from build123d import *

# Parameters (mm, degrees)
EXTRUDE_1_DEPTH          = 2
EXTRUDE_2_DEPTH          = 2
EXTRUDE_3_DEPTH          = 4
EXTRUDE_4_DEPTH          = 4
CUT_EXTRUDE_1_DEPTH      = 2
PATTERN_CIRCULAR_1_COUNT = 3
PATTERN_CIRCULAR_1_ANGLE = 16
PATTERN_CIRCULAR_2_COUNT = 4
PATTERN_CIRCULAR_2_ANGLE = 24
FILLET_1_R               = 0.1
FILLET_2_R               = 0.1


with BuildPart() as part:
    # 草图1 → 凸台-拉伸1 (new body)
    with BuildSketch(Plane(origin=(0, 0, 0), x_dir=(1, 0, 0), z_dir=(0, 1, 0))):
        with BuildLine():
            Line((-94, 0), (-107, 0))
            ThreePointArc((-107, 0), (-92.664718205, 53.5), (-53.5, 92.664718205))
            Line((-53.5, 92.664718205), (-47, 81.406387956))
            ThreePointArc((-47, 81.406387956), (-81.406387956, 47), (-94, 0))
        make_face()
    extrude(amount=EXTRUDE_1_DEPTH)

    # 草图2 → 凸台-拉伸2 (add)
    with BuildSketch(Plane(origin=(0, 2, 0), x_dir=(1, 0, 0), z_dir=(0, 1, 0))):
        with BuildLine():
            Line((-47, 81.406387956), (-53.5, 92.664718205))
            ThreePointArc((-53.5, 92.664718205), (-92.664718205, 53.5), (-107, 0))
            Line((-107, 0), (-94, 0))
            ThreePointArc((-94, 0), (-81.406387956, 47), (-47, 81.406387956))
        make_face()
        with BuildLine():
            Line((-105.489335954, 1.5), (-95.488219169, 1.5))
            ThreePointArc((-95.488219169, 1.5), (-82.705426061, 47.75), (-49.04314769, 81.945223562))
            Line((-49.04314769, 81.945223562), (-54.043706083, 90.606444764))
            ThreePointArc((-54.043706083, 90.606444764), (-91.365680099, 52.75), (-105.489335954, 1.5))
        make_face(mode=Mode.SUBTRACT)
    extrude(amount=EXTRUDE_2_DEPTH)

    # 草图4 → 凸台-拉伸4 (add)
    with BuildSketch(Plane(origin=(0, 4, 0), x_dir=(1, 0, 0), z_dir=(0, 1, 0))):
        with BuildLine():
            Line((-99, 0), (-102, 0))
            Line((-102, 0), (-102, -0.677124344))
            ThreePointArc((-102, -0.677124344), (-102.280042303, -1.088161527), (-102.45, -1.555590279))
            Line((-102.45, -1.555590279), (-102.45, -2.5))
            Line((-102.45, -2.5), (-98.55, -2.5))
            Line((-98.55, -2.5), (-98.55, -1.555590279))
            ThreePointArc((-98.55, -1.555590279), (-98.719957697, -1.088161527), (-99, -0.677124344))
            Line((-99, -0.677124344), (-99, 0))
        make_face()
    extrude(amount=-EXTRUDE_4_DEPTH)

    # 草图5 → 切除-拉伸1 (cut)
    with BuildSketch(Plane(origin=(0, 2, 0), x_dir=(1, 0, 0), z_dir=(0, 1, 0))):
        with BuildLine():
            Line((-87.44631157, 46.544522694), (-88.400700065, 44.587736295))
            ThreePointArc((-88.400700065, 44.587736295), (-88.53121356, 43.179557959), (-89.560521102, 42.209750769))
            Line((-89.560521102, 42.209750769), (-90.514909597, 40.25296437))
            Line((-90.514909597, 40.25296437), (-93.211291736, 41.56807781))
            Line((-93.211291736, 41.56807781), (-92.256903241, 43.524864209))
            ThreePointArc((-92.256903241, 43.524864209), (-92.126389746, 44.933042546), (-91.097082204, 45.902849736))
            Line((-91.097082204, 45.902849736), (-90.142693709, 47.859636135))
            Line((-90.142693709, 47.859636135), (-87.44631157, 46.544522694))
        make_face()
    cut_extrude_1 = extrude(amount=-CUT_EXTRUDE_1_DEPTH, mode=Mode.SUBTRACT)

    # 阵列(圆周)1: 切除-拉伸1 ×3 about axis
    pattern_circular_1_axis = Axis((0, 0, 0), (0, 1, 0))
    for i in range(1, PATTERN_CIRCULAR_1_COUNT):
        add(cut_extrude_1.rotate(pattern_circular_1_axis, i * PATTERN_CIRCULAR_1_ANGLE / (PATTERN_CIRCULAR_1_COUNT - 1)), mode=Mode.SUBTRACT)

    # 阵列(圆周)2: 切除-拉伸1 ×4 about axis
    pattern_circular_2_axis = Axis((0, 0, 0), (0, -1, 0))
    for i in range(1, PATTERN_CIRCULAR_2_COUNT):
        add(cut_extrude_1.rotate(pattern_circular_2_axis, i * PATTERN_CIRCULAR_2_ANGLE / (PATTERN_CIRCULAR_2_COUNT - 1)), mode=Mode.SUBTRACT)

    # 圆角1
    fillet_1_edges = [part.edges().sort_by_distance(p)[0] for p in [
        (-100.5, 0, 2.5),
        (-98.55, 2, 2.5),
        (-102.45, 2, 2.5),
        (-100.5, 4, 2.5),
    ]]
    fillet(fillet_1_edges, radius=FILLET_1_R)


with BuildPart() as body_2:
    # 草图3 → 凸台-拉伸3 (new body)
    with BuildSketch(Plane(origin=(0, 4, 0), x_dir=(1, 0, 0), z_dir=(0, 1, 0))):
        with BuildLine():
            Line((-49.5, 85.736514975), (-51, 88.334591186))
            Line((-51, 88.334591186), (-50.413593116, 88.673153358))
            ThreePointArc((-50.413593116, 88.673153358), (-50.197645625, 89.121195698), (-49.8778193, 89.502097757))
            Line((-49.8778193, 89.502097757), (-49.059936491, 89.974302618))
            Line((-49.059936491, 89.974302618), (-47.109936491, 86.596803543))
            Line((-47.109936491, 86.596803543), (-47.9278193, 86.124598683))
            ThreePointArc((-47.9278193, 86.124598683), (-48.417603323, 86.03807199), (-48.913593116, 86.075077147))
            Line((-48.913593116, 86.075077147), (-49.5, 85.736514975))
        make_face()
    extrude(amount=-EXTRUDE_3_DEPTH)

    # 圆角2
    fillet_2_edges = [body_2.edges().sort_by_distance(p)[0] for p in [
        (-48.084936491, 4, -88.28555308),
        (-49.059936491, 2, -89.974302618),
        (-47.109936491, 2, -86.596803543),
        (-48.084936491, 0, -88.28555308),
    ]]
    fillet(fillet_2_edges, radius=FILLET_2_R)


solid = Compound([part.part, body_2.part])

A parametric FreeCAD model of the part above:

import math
import FreeCAD as App
import Part
import Sketcher
from FreeCAD import Vector
Q = App.Units.Quantity


def edges_at(feature, points):
    """Names of the edges that pass closest to the given points."""
    edges = feature.Shape.Edges
    near = lambda p: min(range(len(edges)), key=lambda i: edges[i].distToShape(Part.Vertex(*p))[0])
    return sorted({f"Edge{near(p) + 1}" for p in points})

doc = App.newDocument("Part")
body = doc.addObject("PartDesign::Body", "Body")

sketch1 = doc.addObject("Sketcher::SketchObject", "Sketch")
body.addObject(sketch1)
sketch1.AttachmentSupport = (doc.XZ_Plane, [""])
sketch1.MapMode = "FlatFace"
sketch1.addGeometry([
    Part.LineSegment(Vector(-107, 0, 0), Vector(-94, 0, 0)),
    Part.ArcOfCircle(Part.Circle(Vector(0, 0, 0), Vector(0, 0, 1), 94), math.radians(180), math.radians(240)),
    Part.LineSegment(Vector(-47, -81, 0), Vector(-54, -93, 0)),
    Part.ArcOfCircle(Part.Circle(Vector(0, 0, 0), Vector(0, 0, 1), 107), math.radians(180), math.radians(240)),
], False)
sketch1.addConstraint([
    Sketcher.Constraint("Coincident", 0, 2, 1, 1),
    Sketcher.Constraint("Coincident", 1, 2, 2, 1),
    Sketcher.Constraint("Coincident", 2, 2, 3, 2),
    Sketcher.Constraint("Coincident", 3, 1, 0, 1),
    Sketcher.Constraint("Horizontal", 0),
    Sketcher.Constraint("Coincident", 1, 3, -1, 1),
    Sketcher.Constraint("Coincident", 3, 3, -1, 1),
    Sketcher.Constraint("PointOnObject", 0, 2, -1),
    Sketcher.Constraint("Radius", 1, Q("94 mm")),
    Sketcher.Constraint("Radius", 3, Q("107 mm")),
    Sketcher.Constraint("Angle", 2, Q("-120 deg")),
    Sketcher.Constraint("DistanceX", 1, 2, -1, 1, Q("47 mm")),
])
pad1 = doc.addObject("PartDesign::Pad", "Pad")
body.addObject(pad1)
pad1.Profile = sketch1
pad1.Length = 2
pad1.Reversed = True

sketch2 = doc.addObject("Sketcher::SketchObject", "Sketch001")
body.addObject(sketch2)
sketch2.AttachmentSupport = (doc.XZ_Plane, [""])
sketch2.MapMode = "FlatFace"
sketch2.AttachmentOffset = App.Placement(Vector(0, 0, -2), App.Rotation())
sketch2.addGeometry([
    Part.LineSegment(Vector(-47, -81, 0), Vector(-54, -93, 0)),
    Part.ArcOfCircle(Part.Circle(Vector(0, 0, 0), Vector(0, 0, 1), 107), math.radians(180), math.radians(240)),
    Part.LineSegment(Vector(-107, 0, 0), Vector(-94, 0, 0)),
    Part.ArcOfCircle(Part.Circle(Vector(0, 0, 0), Vector(0, 0, 1), 94), math.radians(180), math.radians(240)),
    Part.LineSegment(Vector(-95, -2, 0), Vector(-105, -2, 0)),
    Part.ArcOfCircle(Part.Circle(Vector(0, 0, 0), Vector(0, 0, 1), 106), math.radians(-179), math.radians(-121)),
    Part.LineSegment(Vector(-54, -91, 0), Vector(-49, -82, 0)),
    Part.ArcOfCircle(Part.Circle(Vector(0, 0, 0), Vector(0, 0, 1), 96), math.radians(-179), math.radians(-121)),
], False)
sketch2.addConstraint([
    Sketcher.Constraint("Coincident", 0, 2, 1, 2),
    Sketcher.Constraint("Coincident", 1, 1, 2, 1),
    Sketcher.Constraint("Coincident", 2, 2, 3, 1),
    Sketcher.Constraint("Coincident", 3, 2, 0, 1),
    Sketcher.Constraint("Coincident", 4, 2, 5, 1),
    Sketcher.Constraint("Coincident", 5, 2, 6, 1),
    Sketcher.Constraint("Coincident", 6, 2, 7, 2),
    Sketcher.Constraint("Coincident", 7, 1, 4, 1),
    Sketcher.Constraint("Horizontal", 2),
    Sketcher.Constraint("Horizontal", 4),
    Sketcher.Constraint("Coincident", 1, 3, -1, 1),
    Sketcher.Constraint("Coincident", 3, 3, -1, 1),
    Sketcher.Constraint("Coincident", 5, 3, -1, 1),
    Sketcher.Constraint("Coincident", 7, 3, -1, 1),
    Sketcher.Constraint("PointOnObject", 1, 1, -1),
    Sketcher.Constraint("Parallel", 0, 6),
    Sketcher.Constraint("Radius", 1, Q("107 mm")),
    Sketcher.Constraint("Radius", 3, Q("94 mm")),
    Sketcher.Constraint("Radius", 5, Q("105.5 mm")),
    Sketcher.Constraint("Radius", 7, Q("95.5 mm")),
    Sketcher.Constraint("Angle", 0, Q("-120 deg")),
    Sketcher.Constraint("DistanceX", 3, 2, -1, 1, Q("47 mm")),
    Sketcher.Constraint("DistanceY", 4, 2, -1, 1, Q("1.5 mm")),
    Sketcher.Constraint("DistanceX", 4, 2, 5, 2, Q("51.44563 mm")),
])
pad2 = doc.addObject("PartDesign::Pad", "Pad001")
body.addObject(pad2)
pad2.Profile = sketch2
pad2.Length = 2
pad2.Reversed = True

sketch3 = doc.addObject("Sketcher::SketchObject", "Sketch002")
body.addObject(sketch3)
sketch3.AttachmentSupport = (doc.XZ_Plane, [""])
sketch3.MapMode = "FlatFace"
sketch3.AttachmentOffset = App.Placement(Vector(0, 0, -4), App.Rotation())
sketch3.addGeometry([
    Part.LineSegment(Vector(-99, 0, 0), Vector(-102, 0, 0)),
    Part.LineSegment(Vector(-102, 0, 0), Vector(-102, 0.7, 0)),
    Part.ArcOfCircle(Part.Circle(Vector(-100.5, 2, 0), Vector(0, 0, 1), 2), math.radians(-167), math.radians(-139)),
    Part.LineSegment(Vector(-102.5, 1.6, 0), Vector(-102.5, 2.5, 0)),
    Part.LineSegment(Vector(-102.5, 2.5, 0), Vector(-98.5, 2.5, 0)),
    Part.LineSegment(Vector(-98.5, 2.5, 0), Vector(-98.5, 1.6, 0)),
    Part.ArcOfCircle(Part.Circle(Vector(-100.5, 2, 0), Vector(0, 0, 1), 2), math.radians(-41), math.radians(-13)),
    Part.LineSegment(Vector(-99, 0.7, 0), Vector(-99, 0, 0)),
], False)
sketch3.addConstraint([
    Sketcher.Constraint("Coincident", 0, 2, 1, 1),
    Sketcher.Constraint("Coincident", 1, 2, 2, 2),
    Sketcher.Constraint("Coincident", 2, 1, 3, 1),
    Sketcher.Constraint("Coincident", 3, 2, 4, 1),
    Sketcher.Constraint("Coincident", 4, 2, 5, 1),
    Sketcher.Constraint("Coincident", 5, 2, 6, 2),
    Sketcher.Constraint("Coincident", 6, 1, 7, 1),
    Sketcher.Constraint("Coincident", 7, 2, 0, 1),
    Sketcher.Constraint("Horizontal", 0),
    Sketcher.Constraint("Vertical", 1),
    Sketcher.Constraint("Vertical", 3),
    Sketcher.Constraint("Horizontal", 4),
    Sketcher.Constraint("Vertical", 5),
    Sketcher.Constraint("Vertical", 7),
    Sketcher.Constraint("Coincident", 6, 3, 2, 3),
    Sketcher.Constraint("Equal", 2, 6),
    Sketcher.Constraint("PointOnObject", 0, 2, -1),
    Sketcher.Constraint("Horizontal", 2, 1, 5, 2),
    Sketcher.Constraint("Horizontal", 1, 2, 6, 1),
    Sketcher.Constraint("Radius", 2, Q("2 mm")),
    Sketcher.Constraint("DistanceX", 0, 2, 0, 1, Q("3 mm")),
    Sketcher.Constraint("DistanceX", 4, 1, 4, 2, Q("3.9 mm")),
    Sketcher.Constraint("DistanceY", -1, 1, 2, 3, Q("2 mm")),
    Sketcher.Constraint("DistanceX", 0, 2, -1, 1, Q("102 mm")),
    Sketcher.Constraint("DistanceY", -1, 1, 3, 2, Q("2.5 mm")),
])
pad3 = doc.addObject("PartDesign::Pad", "Pad002")
body.addObject(pad3)
pad3.Profile = sketch3
pad3.Length = 4

sketch4 = doc.addObject("Sketcher::SketchObject", "Sketch003")
body.addObject(sketch4)
sketch4.AttachmentSupport = (doc.XZ_Plane, [""])
sketch4.MapMode = "FlatFace"
sketch4.AttachmentOffset = App.Placement(Vector(0, 0, -2), App.Rotation())
sketch4.addGeometry([
    Part.LineSegment(Vector(-88.4, -44.6, 0), Vector(-87.4, -46.5, 0)),
    Part.LineSegment(Vector(-87.4, -46.5, 0), Vector(-90.1, -47.9, 0)),
    Part.LineSegment(Vector(-90.1, -47.9, 0), Vector(-91.1, -45.9, 0)),
    Part.ArcOfCircle(Part.Circle(Vector(-90.3, -44.1, 0), Vector(0, 0, 1), 2), math.radians(165), math.radians(247)),
    Part.LineSegment(Vector(-92.3, -43.5, 0), Vector(-93.2, -41.6, 0)),
    Part.LineSegment(Vector(-93.2, -41.6, 0), Vector(-90.5, -40.3, 0)),
    Part.LineSegment(Vector(-90.5, -40.3, 0), Vector(-89.6, -42.2, 0)),
    Part.ArcOfCircle(Part.Circle(Vector(-90.3, -44.1, 0), Vector(0, 0, 1), 2), math.radians(-15), math.radians(67)),
], False)
sketch4.addConstraint([
    Sketcher.Constraint("Coincident", 0, 2, 1, 1),
    Sketcher.Constraint("Coincident", 1, 2, 2, 1),
    Sketcher.Constraint("Coincident", 2, 2, 3, 2),
    Sketcher.Constraint("Coincident", 3, 1, 4, 1),
    Sketcher.Constraint("Coincident", 4, 2, 5, 1),
    Sketcher.Constraint("Coincident", 5, 2, 6, 1),
    Sketcher.Constraint("Coincident", 6, 2, 7, 2),
    Sketcher.Constraint("Coincident", 7, 1, 0, 1),
    Sketcher.Constraint("Coincident", 7, 3, 3, 3),
    Sketcher.Constraint("Equal", 3, 7),
    Sketcher.Constraint("Perpendicular", 0, 1),
    Sketcher.Constraint("Perpendicular", 1, 2),
    Sketcher.Constraint("Parallel", 2, 4),
    Sketcher.Constraint("Perpendicular", 4, 5),
    Sketcher.Constraint("Perpendicular", 5, 6),
    Sketcher.Constraint("Equal", 0, 2),
    Sketcher.Constraint("Equal", 2, 4),
    Sketcher.Constraint("Equal", 1, 5),
    Sketcher.Constraint("Equal", 4, 6),
    Sketcher.Constraint("Radius", 3, Q("2 mm")),
    Sketcher.Constraint("Angle", 0, Q("-64 deg")),
    Sketcher.Constraint("Distance", 1, Q("3 mm")),
    Sketcher.Constraint("DistanceX", 3, 3, -1, 1, Q("90.328802 mm")),
    Sketcher.Constraint("DistanceY", 3, 3, -1, 1, Q("44.0563 mm")),
    Sketcher.Constraint("DistanceX", 4, 2, 1, 2, Q("3.068598 mm")),
])
pocket1 = doc.addObject("PartDesign::Pocket", "Pocket")
body.addObject(pocket1)
pocket1.Profile = sketch4
pocket1.Length = 2
pocket1.Reversed = True
doc.recompute()

polarpattern = doc.addObject("PartDesign::PolarPattern", "PolarPattern")
body.addObject(polarpattern)
polarpattern.Originals = [pocket1]
polarpattern.Axis = (doc.Y_Axis, [""])
polarpattern.Angle = 16
polarpattern.Occurrences = 3
body.Tip = polarpattern
doc.recompute()

polarpattern2 = doc.addObject("PartDesign::PolarPattern", "PolarPattern001")
body.addObject(polarpattern2)
polarpattern2.Originals = [pocket1]
polarpattern2.Axis = (doc.Y_Axis, [""])
polarpattern2.Angle = 24
polarpattern2.Occurrences = 4
polarpattern2.Reversed = True
body.Tip = polarpattern2
doc.recompute()

fillet = doc.addObject("PartDesign::Fillet", "Fillet")
body.addObject(fillet)
fillet.Base = (polarpattern2, edges_at(polarpattern2, [
    (-100.5, 0, 2.5),
    (-98.55, 2, 2.5),
    (-102.45, 2, 2.5),
    (-100.5, 4, 2.5),
]))
fillet.Radius = 0.1
body2 = doc.addObject("PartDesign::Body", "Body001")

sketch5 = doc.addObject("Sketcher::SketchObject", "Sketch004")
body2.addObject(sketch5)
sketch5.AttachmentSupport = (doc.getObject("XZ_Plane001"), [""])
sketch5.MapMode = "FlatFace"
sketch5.AttachmentOffset = App.Placement(Vector(0, 0, -4), App.Rotation())
sketch5.addGeometry([
    Part.LineSegment(Vector(-51, -88.3, 0), Vector(-49.5, -85.7, 0)),
    Part.LineSegment(Vector(-49.5, -85.7, 0), Vector(-48.9, -86.1, 0)),
    Part.ArcOfCircle(Part.Circle(Vector(-48.5, -88, 0), Vector(0, 0, 1), 2), math.radians(73), math.radians(101)),
    Part.LineSegment(Vector(-47.9, -86.1, 0), Vector(-47.1, -86.6, 0)),
    Part.LineSegment(Vector(-47.1, -86.6, 0), Vector(-49.1, -90, 0)),
    Part.LineSegment(Vector(-49.1, -90, 0), Vector(-49.9, -89.5, 0)),
    Part.ArcOfCircle(Part.Circle(Vector(-48.5, -88, 0), Vector(0, 0, 1), 2), math.radians(-161), math.radians(-133)),
    Part.LineSegment(Vector(-50.4, -88.7, 0), Vector(-51, -88.3, 0)),
], False)
sketch5.addConstraint([
    Sketcher.Constraint("Coincident", 0, 2, 1, 1),
    Sketcher.Constraint("Coincident", 1, 2, 2, 2),
    Sketcher.Constraint("Coincident", 2, 1, 3, 1),
    Sketcher.Constraint("Coincident", 3, 2, 4, 1),
    Sketcher.Constraint("Coincident", 4, 2, 5, 1),
    Sketcher.Constraint("Coincident", 5, 2, 6, 2),
    Sketcher.Constraint("Coincident", 6, 1, 7, 1),
    Sketcher.Constraint("Coincident", 7, 2, 0, 1),
    Sketcher.Constraint("Coincident", 6, 3, 2, 3),
    Sketcher.Constraint("Equal", 2, 6),
    Sketcher.Constraint("Perpendicular", 0, 1),
    Sketcher.Constraint("Parallel", 1, 3),
    Sketcher.Constraint("Perpendicular", 3, 4),
    Sketcher.Constraint("Perpendicular", 4, 5),
    Sketcher.Constraint("Parallel", 5, 7),
    Sketcher.Constraint("Equal", 3, 5),
    Sketcher.Constraint("Equal", 1, 7),
    Sketcher.Constraint("Radius", 2, Q("2 mm")),
    Sketcher.Constraint("Angle", 0, Q("60 deg")),
    Sketcher.Constraint("Distance", 0, Q("3 mm")),
    Sketcher.Constraint("DistanceX", 7, 2, -1, 1, Q("51 mm")),
    Sketcher.Constraint("Distance", 4, Q("3.9 mm")),
    Sketcher.Constraint("DistanceY", 2, 1, -1, 1, Q("86.124599 mm")),
    Sketcher.Constraint("Distance", 3, Q("0.94441 mm")),
    Sketcher.Constraint("DistanceX", 2, 3, -1, 1, Q("48.517949 mm")),
])
pad4 = doc.addObject("PartDesign::Pad", "Pad003")
body2.addObject(pad4)
pad4.Profile = sketch5
pad4.Length = 4
doc.recompute()

fillet2 = doc.addObject("PartDesign::Fillet", "Fillet001")
body2.addObject(fillet2)
fillet2.Base = (pad4, edges_at(pad4, [
    (-48.085, 4, -88.286),
    (-49.06, 2, -89.974),
    (-47.11, 2, -86.597),
    (-48.085, 0, -88.286),
]))
fillet2.Radius = 0.1

doc.recompute()
